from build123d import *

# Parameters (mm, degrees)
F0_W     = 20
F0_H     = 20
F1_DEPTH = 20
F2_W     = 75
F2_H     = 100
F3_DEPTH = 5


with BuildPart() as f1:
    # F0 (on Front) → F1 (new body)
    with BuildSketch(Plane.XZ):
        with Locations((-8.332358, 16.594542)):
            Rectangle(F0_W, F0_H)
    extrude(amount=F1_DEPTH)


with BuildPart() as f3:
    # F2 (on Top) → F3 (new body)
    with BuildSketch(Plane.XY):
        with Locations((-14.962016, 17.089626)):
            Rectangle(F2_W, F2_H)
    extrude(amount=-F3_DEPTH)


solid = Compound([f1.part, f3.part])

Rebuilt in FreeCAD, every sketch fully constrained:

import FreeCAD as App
import Part
import Sketcher
from FreeCAD import Vector

doc = App.newDocument("Part")
body = doc.addObject("PartDesign::Body", "Body")

# Sketch on XZ plane
sketch1 = body.newObject("Sketcher::SketchObject", "Sketch")
sketch1.AttachmentSupport = (doc.getObject("XZ_Plane"), [""])
sketch1.MapMode = "FlatFace"
sketch1.addGeometry(Part.LineSegment(Vector(-18, 27, 0), Vector(-18, 7, 0)), False)
sketch1.addGeometry(Part.LineSegment(Vector(-18, 7, 0), Vector(2, 7, 0)), False)
sketch1.addGeometry(Part.LineSegment(Vector(2, 7, 0), Vector(2, 27, 0)), False)
sketch1.addGeometry(Part.LineSegment(Vector(2, 27, 0), Vector(-18, 27, 0)), False)
sketch1.addConstraint(Sketcher.Constraint("Coincident", 0, 2, 1, 1))
sketch1.addConstraint(Sketcher.Constraint("Coincident", 1, 2, 2, 1))
sketch1.addConstraint(Sketcher.Constraint("Coincident", 2, 2, 3, 1))
sketch1.addConstraint(Sketcher.Constraint("Coincident", 3, 2, 0, 1))
sketch1.addConstraint(Sketcher.Constraint("Vertical", 0))
sketch1.addConstraint(Sketcher.Constraint("Horizontal", 1))
sketch1.addConstraint(Sketcher.Constraint("Vertical", 2))
sketch1.addConstraint(Sketcher.Constraint("Horizontal", 3))
sketch1.addConstraint(Sketcher.Constraint("Equal", 3, 0))
sketch1.addConstraint(Sketcher.Constraint("DistanceX", 1, 1, 1, 2, 20.0))
sketch1.addConstraint(Sketcher.Constraint("DistanceY", -1, 1, 0, 2, 6.594542))
sketch1.addConstraint(Sketcher.Constraint("DistanceX", 0, 2, -1, 1, 18.332358))
pad1 = body.newObject("PartDesign::Pad", "Pad")
pad1.Profile = sketch1
pad1.Length = 20
body2 = doc.addObject("PartDesign::Body", "Body001")

# Sketch on XY plane
sketch2 = body2.newObject("Sketcher::SketchObject", "Sketch001")
sketch2.AttachmentSupport = (doc.getObject("XY_Plane001"), [""])
sketch2.MapMode = "FlatFace"
sketch2.addGeometry(Part.LineSegment(Vector(-52, 67, 0), Vector(-52, -33, 0)), False)
sketch2.addGeometry(Part.LineSegment(Vector(-52, -33, 0), Vector(23, -33, 0)), False)
sketch2.addGeometry(Part.LineSegment(Vector(23, -33, 0), Vector(23, 67, 0)), False)
sketch2.addGeometry(Part.LineSegment(Vector(23, 67, 0), Vector(-52, 67, 0)), False)
sketch2.addConstraint(Sketcher.Constraint("Coincident", 0, 2, 1, 1))
sketch2.addConstraint(Sketcher.Constraint("Coincident", 1, 2, 2, 1))
sketch2.addConstraint(Sketcher.Constraint("Coincident", 2, 2, 3, 1))
sketch2.addConstraint(Sketcher.Constraint("Coincident", 3, 2, 0, 1))
sketch2.addConstraint(Sketcher.Constraint("Vertical", 0))
sketch2.addConstraint(Sketcher.Constraint("Horizontal", 1))
sketch2.addConstraint(Sketcher.Constraint("Vertical", 2))
sketch2.addConstraint(Sketcher.Constraint("Horizontal", 3))
sketch2.addConstraint(Sketcher.Constraint("DistanceX", 1, 1, 1, 2, 75.0))
sketch2.addConstraint(Sketcher.Constraint("DistanceY", 0, 2, 0, 1, 100.0))
sketch2.addConstraint(Sketcher.Constraint("DistanceX", 0, 2, -1, 1, 52.462016))
sketch2.addConstraint(Sketcher.Constraint("DistanceY", 0, 2, -1, 1, 32.910374))
pad2 = body2.newObject("PartDesign::Pad", "Pad001")
pad2.Profile = sketch2
pad2.Length = 5
pad2.Reversed = True

doc.recompute()
